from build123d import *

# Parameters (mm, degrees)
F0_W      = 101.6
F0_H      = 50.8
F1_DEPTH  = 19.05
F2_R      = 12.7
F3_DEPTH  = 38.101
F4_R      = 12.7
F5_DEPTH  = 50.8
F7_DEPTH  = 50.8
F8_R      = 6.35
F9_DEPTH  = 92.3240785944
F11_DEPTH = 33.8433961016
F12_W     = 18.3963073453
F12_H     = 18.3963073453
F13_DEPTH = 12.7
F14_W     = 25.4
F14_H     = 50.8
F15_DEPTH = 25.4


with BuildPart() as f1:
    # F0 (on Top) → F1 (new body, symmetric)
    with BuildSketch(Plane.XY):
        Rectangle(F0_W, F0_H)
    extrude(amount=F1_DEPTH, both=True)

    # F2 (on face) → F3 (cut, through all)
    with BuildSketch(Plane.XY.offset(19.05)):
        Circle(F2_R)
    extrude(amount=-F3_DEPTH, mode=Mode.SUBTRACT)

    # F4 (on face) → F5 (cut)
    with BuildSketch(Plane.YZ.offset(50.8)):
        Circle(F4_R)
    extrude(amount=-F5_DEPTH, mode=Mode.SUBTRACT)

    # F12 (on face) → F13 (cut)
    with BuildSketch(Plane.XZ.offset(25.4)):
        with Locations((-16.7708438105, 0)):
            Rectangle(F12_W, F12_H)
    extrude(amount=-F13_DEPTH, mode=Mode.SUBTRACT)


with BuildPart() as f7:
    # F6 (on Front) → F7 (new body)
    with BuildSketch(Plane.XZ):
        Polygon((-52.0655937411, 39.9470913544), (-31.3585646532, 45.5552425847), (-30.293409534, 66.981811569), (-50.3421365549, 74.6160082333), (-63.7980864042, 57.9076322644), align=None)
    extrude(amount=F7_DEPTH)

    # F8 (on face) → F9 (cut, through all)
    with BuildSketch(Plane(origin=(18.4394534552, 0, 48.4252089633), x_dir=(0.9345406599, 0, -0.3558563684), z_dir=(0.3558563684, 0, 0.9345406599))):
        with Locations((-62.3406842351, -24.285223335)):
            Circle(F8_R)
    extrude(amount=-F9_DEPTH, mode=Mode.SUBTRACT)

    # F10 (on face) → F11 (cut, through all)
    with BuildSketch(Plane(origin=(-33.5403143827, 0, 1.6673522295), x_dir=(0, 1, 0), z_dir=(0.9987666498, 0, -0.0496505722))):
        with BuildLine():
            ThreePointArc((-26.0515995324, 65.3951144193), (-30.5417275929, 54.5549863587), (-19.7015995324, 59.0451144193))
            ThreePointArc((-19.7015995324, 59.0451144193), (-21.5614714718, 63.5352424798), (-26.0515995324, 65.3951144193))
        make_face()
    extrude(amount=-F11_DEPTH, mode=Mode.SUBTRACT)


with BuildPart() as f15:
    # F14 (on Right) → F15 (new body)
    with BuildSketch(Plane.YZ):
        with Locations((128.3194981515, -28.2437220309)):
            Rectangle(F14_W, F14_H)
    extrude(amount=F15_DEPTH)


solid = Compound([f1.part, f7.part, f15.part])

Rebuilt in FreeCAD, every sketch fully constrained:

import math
import FreeCAD as App
import Part
import Sketcher

V = App.Vector
Q = App.Units.Quantity


def add_polygon(sketch, points):
    """Adds a closed chain of lines whose ends are joined by coincident constraints."""
    first, n = sketch.GeometryCount, len(points)
    for a, b in zip(points, points[1:] + points[:1]):
        sketch.addGeometry(Part.LineSegment(App.Vector(*a, 0), App.Vector(*b, 0)), False)
    for i in range(n):
        sketch.addConstraint(Sketcher.Constraint("Coincident", first + i, 2, first + (i + 1) % n, 1))

doc = App.newDocument("Part")
body = doc.addObject("PartDesign::Body", "Body")

sketch1 = doc.addObject("Sketcher::SketchObject", "Sketch")
body.addObject(sketch1)
sketch1.AttachmentSupport = (doc.XY_Plane, [""])
sketch1.MapMode = "FlatFace"
add_polygon(sketch1, [(-50.8, 25.4), (-50.8, -25.4), (50.8, -25.4), (50.8, 25.4)])
sketch1.addConstraint([
    Sketcher.Constraint("Vertical", 0),
    Sketcher.Constraint("Horizontal", 1),
    Sketcher.Constraint("Vertical", 2),
    Sketcher.Constraint("Horizontal", 3),
    Sketcher.Constraint("Symmetric", 0, 2, 2, 2, -1, 1),
    Sketcher.Constraint("DistanceX", 1, 1, 1, 2, Q("4 in")),
    Sketcher.Constraint("DistanceY", 0, 2, 0, 1, Q("2 in")),
])
pad1 = doc.addObject("PartDesign::Pad", "Pad")
body.addObject(pad1)
pad1.Profile = sketch1
pad1.Length = Q("1.5 in")
pad1.Midplane = True

sketch2 = doc.addObject("Sketcher::SketchObject", "Sketch001")
body.addObject(sketch2)
sketch2.AttachmentSupport = (doc.XY_Plane, [""])
sketch2.MapMode = "FlatFace"
sketch2.AttachmentOffset = App.Placement(V(0, 0, 0.75 * 25.4), App.Rotation())
sketch2.addGeometry(Part.Circle(V(0, 0, 0), V(0, 0, 1), 12.7), False)
sketch2.addConstraint([
    Sketcher.Constraint("Coincident", 0, 3, -1, 1),
    Sketcher.Constraint("Diameter", 0, Q("1 in")),
])
pocket1 = doc.addObject("PartDesign::Pocket", "Pocket")
body.addObject(pocket1)
pocket1.Profile = sketch2
pocket1.Type = "ThroughAll"

sketch3 = doc.addObject("Sketcher::SketchObject", "Sketch002")
body.addObject(sketch3)
sketch3.AttachmentSupport = (doc.YZ_Plane, [""])
sketch3.MapMode = "FlatFace"
sketch3.AttachmentOffset = App.Placement(V(0, 0, 2 * 25.4), App.Rotation())
sketch3.addGeometry(Part.Circle(V(0, 0, 0), V(0, 0, 1), 12.7), False)
sketch3.addConstraint([
    Sketcher.Constraint("Coincident", 0, 3, -1, 1),
    Sketcher.Constraint("Diameter", 0, Q("1 in")),
])
pocket2 = doc.addObject("PartDesign::Pocket", "Pocket001")
body.addObject(pocket2)
pocket2.Profile = sketch3
pocket2.Length = Q("2 in")

sketch4 = doc.addObject("Sketcher::SketchObject", "Sketch003")
body.addObject(sketch4)
sketch4.AttachmentSupport = (doc.XZ_Plane, [""])
sketch4.MapMode = "FlatFace"
sketch4.AttachmentOffset = App.Placement(V(0, 0, 1 * 25.4), App.Rotation())
add_polygon(sketch4, [(-25.968997, 9.198154), (-25.968997, -9.198154), (-7.57269, -9.198154), (-7.57269, 9.198154)])
sketch4.addConstraint([
    Sketcher.Constraint("Vertical", 0),
    Sketcher.Constraint("Horizontal", 1),
    Sketcher.Constraint("Vertical", 2),
    Sketcher.Constraint("Horizontal", 3),
    Sketcher.Constraint("Equal", 3, 0),
    Sketcher.Constraint("DistanceX", 1, 1, 1, 2, 18.396307),
    Sketcher.Constraint("DistanceX", 1, 2, -1, 1, 7.57269),
    Sketcher.Constraint("DistanceY", 0, 2, -1, 1, 9.198154),
])
pocket3 = doc.addObject("PartDesign::Pocket", "Pocket002")
body.addObject(pocket3)
pocket3.Profile = sketch4
pocket3.Length = Q("0.5 in")
body2 = doc.addObject("PartDesign::Body", "Body001")

sketch5 = doc.addObject("Sketcher::SketchObject", "Sketch004")
body2.addObject(sketch5)
sketch5.AttachmentSupport = (doc.getObject("XZ_Plane001"), [""])
sketch5.MapMode = "FlatFace"
add_polygon(sketch5, [(-52.065594, 39.947091), (-31.358565, 45.555243), (-30.29341, 66.981812), (-50.342137, 74.616008), (-63.798086, 57.907632)])
sketch5.addConstraint([
    Sketcher.Constraint("Equal", 0, 1),
    Sketcher.Constraint("Equal", 1, 2),
    Sketcher.Constraint("Equal", 2, 3),
    Sketcher.Constraint("Equal", 3, 4),
    Sketcher.Constraint("Distance", 0, 21.453028),
    Sketcher.Constraint("DistanceX", 1, 2, -1, 1, 30.29341),
    Sketcher.Constraint("DistanceY", -1, 1, 1, 2, 66.981812),
    Sketcher.Constraint("DistanceY", -1, 1, 2, 2, 74.616008),
    Sketcher.Constraint("DistanceY", -1, 1, 4, 2, 39.947091),
    Sketcher.Constraint("DistanceY", 0, 2, 1, 2, 21.426569),
])
pad2 = doc.addObject("PartDesign::Pad", "Pad001")
body2.addObject(pad2)
pad2.Profile = sketch5
pad2.Length = Q("2 in")

sketch6 = doc.addObject("Sketcher::SketchObject", "Sketch005")
body2.addObject(sketch6)
sketch6.Placement = App.Placement(V(18.439453, 0, 48.425209), App.Rotation(V(0.93454066, 0, -0.355856368), V(0, 1, 0), V(0.355856368, 0, 0.93454066), "ZXY"))
sketch6.addGeometry(Part.Circle(V(-62.340684, -24.285223, 0), V(0, 0, 1), 6.35), False)
sketch6.addConstraint([
    Sketcher.Constraint("Diameter", 0, Q("0.5 in")),
    Sketcher.Constraint("DistanceX", 0, 3, -1, 1, 62.340684),
    Sketcher.Constraint("DistanceY", 0, 3, -1, 1, 24.285223),
])
pocket4 = doc.addObject("PartDesign::Pocket", "Pocket003")
body2.addObject(pocket4)
pocket4.Profile = sketch6
pocket4.Type = "ThroughAll"

sketch7 = doc.addObject("Sketcher::SketchObject", "Sketch006")
body2.addObject(sketch7)
sketch7.Placement = App.Placement(V(-33.540314, 0, 1.667352), App.Rotation(V(0, 1, 0), V(0.049650572, 0, 0.99876665), V(0.99876665, 0, -0.049650572), "ZXY"))
sketch7.addGeometry([
    Part.ArcOfCircle(Part.Circle(V(-26.0516, 59.045114, 0), V(0, 0, 1), 6.35), math.radians(90), math.radians(360)),
    Part.ArcOfCircle(Part.Circle(V(-26.0516, 59.045114, 0), V(0, 0, 1), 6.35), math.radians(0), math.radians(90)),
], False)
sketch7.addConstraint([
    Sketcher.Constraint("Tangent", 0, 1, 1, 2),
    Sketcher.Constraint("Coincident", 1, 1, 0, 2),
    Sketcher.Constraint("Horizontal", 0, 3, 1, 1),
    Sketcher.Constraint("Vertical", 1, 3, 0, 1),
    Sketcher.Constraint("Radius", 0, Q("0.25 in")),
    Sketcher.Constraint("DistanceX", 0, 3, -1, 1, 26.0516),
    Sketcher.Constraint("DistanceY", -1, 1, 0, 3, 59.045114),
])
pocket5 = doc.addObject("PartDesign::Pocket", "Pocket004")
body2.addObject(pocket5)
pocket5.Profile = sketch7
pocket5.Type = "ThroughAll"
body3 = doc.addObject("PartDesign::Body", "Body002")

sketch8 = doc.addObject("Sketcher::SketchObject", "Sketch007")
body3.addObject(sketch8)
sketch8.AttachmentSupport = (doc.getObject("YZ_Plane002"), [""])
sketch8.MapMode = "FlatFace"
add_polygon(sketch8, [(115.619498, -2.843722), (115.619498, -53.643722), (141.019498, -53.643722), (141.019498, -2.843722)])
sketch8.addConstraint([
    Sketcher.Constraint("Vertical", 0),
    Sketcher.Constraint("Horizontal", 1),
    Sketcher.Constraint("Vertical", 2),
    Sketcher.Constraint("Horizontal", 3),
    Sketcher.Constraint("DistanceX", 1, 1, 1, 2, Q("1 in")),
    Sketcher.Constraint("DistanceY", 0, 2, 0, 1, Q("2 in")),
    Sketcher.Constraint("DistanceX", -1, 1, 0, 2, 115.619498),
    Sketcher.Constraint("DistanceY", 0, 2, -1, 1, 53.643722),
])
pad3 = doc.addObject("PartDesign::Pad", "Pad002")
body3.addObject(pad3)
pad3.Profile = sketch8
pad3.Length = Q("1 in")

doc.recompute()
